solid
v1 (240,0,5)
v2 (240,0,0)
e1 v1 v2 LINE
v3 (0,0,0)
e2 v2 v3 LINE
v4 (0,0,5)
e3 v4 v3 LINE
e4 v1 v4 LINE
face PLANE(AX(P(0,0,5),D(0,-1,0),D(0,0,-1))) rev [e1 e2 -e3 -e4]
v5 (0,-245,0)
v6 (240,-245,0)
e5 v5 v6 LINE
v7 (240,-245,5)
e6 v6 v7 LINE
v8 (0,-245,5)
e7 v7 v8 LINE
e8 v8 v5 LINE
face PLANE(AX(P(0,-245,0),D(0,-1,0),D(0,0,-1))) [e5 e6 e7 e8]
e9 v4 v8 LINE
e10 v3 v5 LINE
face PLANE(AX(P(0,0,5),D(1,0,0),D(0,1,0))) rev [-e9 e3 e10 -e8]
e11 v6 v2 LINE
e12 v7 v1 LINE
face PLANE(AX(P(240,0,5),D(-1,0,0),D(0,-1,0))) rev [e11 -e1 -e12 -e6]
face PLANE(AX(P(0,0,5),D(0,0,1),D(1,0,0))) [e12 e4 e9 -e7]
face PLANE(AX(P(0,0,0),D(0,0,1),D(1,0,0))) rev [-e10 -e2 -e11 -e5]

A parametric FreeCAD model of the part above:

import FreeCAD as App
import Part
import Sketcher
from FreeCAD import Vector


def add_polygon(sketch, points):
    """Adds a closed chain of lines whose ends are joined by coincident constraints."""
    first, n = sketch.GeometryCount, len(points)
    for a, b in zip(points, points[1:] + points[:1]):
        sketch.addGeometry(Part.LineSegment(App.Vector(*a, 0), App.Vector(*b, 0)), False)
    for i in range(n):
        sketch.addConstraint(Sketcher.Constraint("Coincident", first + i, 2, first + (i + 1) % n, 1))

doc = App.newDocument("Part")
body = doc.addObject("PartDesign::Body", "Body")

# Sketch on XY plane
sketch1 = body.newObject("Sketcher::SketchObject", "Sketch")
sketch1.AttachmentSupport = (doc.getObject("XY_Plane"), [""])
sketch1.MapMode = "FlatFace"
add_polygon(sketch1, [(0, 0), (0, -410), (240, -410), (240, 0)])  # lines 0-3
sketch1.addConstraint(Sketcher.Constraint("Vertical", 0))
sketch1.addConstraint(Sketcher.Constraint("Horizontal", 1))
sketch1.addConstraint(Sketcher.Constraint("Vertical", 2))
sketch1.addConstraint(Sketcher.Constraint("Horizontal", 3))
sketch1.addConstraint(Sketcher.Constraint("Coincident", 3, 2, -1, 1))
sketch1.addConstraint(Sketcher.Constraint("DistanceX", 1, 1, 1, 2, 240.0))
sketch1.addConstraint(Sketcher.Constraint("DistanceY", 0, 2, 0, 1, 410.0))
pad1 = body.newObject("PartDesign::Pad", "Pad")
pad1.Profile = sketch1
pad1.Length = 5

# Sketch on XZ plane
sketch2 = body.newObject("Sketcher::SketchObject", "Sketch001")
sketch2.AttachmentSupport = (doc.getObject("XZ_Plane"), [""])
sketch2.MapMode = "FlatFace"
sketch2.AttachmentOffset = App.Placement(Vector(0, 0, 410), App.Rotation())
add_polygon(sketch2, [(0, 5), (0, 0), (240, 0), (240, 5)])  # lines 0-3
sketch2.addConstraint(Sketcher.Constraint("Vertical", 0))
sketch2.addConstraint(Sketcher.Constraint("Horizontal", 1))
sketch2.addConstraint(Sketcher.Constraint("Vertical", 2))
sketch2.addConstraint(Sketcher.Constraint("Horizontal", 3))
sketch2.addConstraint(Sketcher.Constraint("Coincident", 0, 2, -1, 1))
sketch2.addConstraint(Sketcher.Constraint("DistanceX", 1, 1, 1, 2, 240.0))
sketch2.addConstraint(Sketcher.Constraint("DistanceY", 0, 2, 0, 1, 5.0))
pocket1 = body.newObject("PartDesign::Pocket", "Pocket")
pocket1.Profile = sketch2
pocket1.Length = 165

doc.recompute()
